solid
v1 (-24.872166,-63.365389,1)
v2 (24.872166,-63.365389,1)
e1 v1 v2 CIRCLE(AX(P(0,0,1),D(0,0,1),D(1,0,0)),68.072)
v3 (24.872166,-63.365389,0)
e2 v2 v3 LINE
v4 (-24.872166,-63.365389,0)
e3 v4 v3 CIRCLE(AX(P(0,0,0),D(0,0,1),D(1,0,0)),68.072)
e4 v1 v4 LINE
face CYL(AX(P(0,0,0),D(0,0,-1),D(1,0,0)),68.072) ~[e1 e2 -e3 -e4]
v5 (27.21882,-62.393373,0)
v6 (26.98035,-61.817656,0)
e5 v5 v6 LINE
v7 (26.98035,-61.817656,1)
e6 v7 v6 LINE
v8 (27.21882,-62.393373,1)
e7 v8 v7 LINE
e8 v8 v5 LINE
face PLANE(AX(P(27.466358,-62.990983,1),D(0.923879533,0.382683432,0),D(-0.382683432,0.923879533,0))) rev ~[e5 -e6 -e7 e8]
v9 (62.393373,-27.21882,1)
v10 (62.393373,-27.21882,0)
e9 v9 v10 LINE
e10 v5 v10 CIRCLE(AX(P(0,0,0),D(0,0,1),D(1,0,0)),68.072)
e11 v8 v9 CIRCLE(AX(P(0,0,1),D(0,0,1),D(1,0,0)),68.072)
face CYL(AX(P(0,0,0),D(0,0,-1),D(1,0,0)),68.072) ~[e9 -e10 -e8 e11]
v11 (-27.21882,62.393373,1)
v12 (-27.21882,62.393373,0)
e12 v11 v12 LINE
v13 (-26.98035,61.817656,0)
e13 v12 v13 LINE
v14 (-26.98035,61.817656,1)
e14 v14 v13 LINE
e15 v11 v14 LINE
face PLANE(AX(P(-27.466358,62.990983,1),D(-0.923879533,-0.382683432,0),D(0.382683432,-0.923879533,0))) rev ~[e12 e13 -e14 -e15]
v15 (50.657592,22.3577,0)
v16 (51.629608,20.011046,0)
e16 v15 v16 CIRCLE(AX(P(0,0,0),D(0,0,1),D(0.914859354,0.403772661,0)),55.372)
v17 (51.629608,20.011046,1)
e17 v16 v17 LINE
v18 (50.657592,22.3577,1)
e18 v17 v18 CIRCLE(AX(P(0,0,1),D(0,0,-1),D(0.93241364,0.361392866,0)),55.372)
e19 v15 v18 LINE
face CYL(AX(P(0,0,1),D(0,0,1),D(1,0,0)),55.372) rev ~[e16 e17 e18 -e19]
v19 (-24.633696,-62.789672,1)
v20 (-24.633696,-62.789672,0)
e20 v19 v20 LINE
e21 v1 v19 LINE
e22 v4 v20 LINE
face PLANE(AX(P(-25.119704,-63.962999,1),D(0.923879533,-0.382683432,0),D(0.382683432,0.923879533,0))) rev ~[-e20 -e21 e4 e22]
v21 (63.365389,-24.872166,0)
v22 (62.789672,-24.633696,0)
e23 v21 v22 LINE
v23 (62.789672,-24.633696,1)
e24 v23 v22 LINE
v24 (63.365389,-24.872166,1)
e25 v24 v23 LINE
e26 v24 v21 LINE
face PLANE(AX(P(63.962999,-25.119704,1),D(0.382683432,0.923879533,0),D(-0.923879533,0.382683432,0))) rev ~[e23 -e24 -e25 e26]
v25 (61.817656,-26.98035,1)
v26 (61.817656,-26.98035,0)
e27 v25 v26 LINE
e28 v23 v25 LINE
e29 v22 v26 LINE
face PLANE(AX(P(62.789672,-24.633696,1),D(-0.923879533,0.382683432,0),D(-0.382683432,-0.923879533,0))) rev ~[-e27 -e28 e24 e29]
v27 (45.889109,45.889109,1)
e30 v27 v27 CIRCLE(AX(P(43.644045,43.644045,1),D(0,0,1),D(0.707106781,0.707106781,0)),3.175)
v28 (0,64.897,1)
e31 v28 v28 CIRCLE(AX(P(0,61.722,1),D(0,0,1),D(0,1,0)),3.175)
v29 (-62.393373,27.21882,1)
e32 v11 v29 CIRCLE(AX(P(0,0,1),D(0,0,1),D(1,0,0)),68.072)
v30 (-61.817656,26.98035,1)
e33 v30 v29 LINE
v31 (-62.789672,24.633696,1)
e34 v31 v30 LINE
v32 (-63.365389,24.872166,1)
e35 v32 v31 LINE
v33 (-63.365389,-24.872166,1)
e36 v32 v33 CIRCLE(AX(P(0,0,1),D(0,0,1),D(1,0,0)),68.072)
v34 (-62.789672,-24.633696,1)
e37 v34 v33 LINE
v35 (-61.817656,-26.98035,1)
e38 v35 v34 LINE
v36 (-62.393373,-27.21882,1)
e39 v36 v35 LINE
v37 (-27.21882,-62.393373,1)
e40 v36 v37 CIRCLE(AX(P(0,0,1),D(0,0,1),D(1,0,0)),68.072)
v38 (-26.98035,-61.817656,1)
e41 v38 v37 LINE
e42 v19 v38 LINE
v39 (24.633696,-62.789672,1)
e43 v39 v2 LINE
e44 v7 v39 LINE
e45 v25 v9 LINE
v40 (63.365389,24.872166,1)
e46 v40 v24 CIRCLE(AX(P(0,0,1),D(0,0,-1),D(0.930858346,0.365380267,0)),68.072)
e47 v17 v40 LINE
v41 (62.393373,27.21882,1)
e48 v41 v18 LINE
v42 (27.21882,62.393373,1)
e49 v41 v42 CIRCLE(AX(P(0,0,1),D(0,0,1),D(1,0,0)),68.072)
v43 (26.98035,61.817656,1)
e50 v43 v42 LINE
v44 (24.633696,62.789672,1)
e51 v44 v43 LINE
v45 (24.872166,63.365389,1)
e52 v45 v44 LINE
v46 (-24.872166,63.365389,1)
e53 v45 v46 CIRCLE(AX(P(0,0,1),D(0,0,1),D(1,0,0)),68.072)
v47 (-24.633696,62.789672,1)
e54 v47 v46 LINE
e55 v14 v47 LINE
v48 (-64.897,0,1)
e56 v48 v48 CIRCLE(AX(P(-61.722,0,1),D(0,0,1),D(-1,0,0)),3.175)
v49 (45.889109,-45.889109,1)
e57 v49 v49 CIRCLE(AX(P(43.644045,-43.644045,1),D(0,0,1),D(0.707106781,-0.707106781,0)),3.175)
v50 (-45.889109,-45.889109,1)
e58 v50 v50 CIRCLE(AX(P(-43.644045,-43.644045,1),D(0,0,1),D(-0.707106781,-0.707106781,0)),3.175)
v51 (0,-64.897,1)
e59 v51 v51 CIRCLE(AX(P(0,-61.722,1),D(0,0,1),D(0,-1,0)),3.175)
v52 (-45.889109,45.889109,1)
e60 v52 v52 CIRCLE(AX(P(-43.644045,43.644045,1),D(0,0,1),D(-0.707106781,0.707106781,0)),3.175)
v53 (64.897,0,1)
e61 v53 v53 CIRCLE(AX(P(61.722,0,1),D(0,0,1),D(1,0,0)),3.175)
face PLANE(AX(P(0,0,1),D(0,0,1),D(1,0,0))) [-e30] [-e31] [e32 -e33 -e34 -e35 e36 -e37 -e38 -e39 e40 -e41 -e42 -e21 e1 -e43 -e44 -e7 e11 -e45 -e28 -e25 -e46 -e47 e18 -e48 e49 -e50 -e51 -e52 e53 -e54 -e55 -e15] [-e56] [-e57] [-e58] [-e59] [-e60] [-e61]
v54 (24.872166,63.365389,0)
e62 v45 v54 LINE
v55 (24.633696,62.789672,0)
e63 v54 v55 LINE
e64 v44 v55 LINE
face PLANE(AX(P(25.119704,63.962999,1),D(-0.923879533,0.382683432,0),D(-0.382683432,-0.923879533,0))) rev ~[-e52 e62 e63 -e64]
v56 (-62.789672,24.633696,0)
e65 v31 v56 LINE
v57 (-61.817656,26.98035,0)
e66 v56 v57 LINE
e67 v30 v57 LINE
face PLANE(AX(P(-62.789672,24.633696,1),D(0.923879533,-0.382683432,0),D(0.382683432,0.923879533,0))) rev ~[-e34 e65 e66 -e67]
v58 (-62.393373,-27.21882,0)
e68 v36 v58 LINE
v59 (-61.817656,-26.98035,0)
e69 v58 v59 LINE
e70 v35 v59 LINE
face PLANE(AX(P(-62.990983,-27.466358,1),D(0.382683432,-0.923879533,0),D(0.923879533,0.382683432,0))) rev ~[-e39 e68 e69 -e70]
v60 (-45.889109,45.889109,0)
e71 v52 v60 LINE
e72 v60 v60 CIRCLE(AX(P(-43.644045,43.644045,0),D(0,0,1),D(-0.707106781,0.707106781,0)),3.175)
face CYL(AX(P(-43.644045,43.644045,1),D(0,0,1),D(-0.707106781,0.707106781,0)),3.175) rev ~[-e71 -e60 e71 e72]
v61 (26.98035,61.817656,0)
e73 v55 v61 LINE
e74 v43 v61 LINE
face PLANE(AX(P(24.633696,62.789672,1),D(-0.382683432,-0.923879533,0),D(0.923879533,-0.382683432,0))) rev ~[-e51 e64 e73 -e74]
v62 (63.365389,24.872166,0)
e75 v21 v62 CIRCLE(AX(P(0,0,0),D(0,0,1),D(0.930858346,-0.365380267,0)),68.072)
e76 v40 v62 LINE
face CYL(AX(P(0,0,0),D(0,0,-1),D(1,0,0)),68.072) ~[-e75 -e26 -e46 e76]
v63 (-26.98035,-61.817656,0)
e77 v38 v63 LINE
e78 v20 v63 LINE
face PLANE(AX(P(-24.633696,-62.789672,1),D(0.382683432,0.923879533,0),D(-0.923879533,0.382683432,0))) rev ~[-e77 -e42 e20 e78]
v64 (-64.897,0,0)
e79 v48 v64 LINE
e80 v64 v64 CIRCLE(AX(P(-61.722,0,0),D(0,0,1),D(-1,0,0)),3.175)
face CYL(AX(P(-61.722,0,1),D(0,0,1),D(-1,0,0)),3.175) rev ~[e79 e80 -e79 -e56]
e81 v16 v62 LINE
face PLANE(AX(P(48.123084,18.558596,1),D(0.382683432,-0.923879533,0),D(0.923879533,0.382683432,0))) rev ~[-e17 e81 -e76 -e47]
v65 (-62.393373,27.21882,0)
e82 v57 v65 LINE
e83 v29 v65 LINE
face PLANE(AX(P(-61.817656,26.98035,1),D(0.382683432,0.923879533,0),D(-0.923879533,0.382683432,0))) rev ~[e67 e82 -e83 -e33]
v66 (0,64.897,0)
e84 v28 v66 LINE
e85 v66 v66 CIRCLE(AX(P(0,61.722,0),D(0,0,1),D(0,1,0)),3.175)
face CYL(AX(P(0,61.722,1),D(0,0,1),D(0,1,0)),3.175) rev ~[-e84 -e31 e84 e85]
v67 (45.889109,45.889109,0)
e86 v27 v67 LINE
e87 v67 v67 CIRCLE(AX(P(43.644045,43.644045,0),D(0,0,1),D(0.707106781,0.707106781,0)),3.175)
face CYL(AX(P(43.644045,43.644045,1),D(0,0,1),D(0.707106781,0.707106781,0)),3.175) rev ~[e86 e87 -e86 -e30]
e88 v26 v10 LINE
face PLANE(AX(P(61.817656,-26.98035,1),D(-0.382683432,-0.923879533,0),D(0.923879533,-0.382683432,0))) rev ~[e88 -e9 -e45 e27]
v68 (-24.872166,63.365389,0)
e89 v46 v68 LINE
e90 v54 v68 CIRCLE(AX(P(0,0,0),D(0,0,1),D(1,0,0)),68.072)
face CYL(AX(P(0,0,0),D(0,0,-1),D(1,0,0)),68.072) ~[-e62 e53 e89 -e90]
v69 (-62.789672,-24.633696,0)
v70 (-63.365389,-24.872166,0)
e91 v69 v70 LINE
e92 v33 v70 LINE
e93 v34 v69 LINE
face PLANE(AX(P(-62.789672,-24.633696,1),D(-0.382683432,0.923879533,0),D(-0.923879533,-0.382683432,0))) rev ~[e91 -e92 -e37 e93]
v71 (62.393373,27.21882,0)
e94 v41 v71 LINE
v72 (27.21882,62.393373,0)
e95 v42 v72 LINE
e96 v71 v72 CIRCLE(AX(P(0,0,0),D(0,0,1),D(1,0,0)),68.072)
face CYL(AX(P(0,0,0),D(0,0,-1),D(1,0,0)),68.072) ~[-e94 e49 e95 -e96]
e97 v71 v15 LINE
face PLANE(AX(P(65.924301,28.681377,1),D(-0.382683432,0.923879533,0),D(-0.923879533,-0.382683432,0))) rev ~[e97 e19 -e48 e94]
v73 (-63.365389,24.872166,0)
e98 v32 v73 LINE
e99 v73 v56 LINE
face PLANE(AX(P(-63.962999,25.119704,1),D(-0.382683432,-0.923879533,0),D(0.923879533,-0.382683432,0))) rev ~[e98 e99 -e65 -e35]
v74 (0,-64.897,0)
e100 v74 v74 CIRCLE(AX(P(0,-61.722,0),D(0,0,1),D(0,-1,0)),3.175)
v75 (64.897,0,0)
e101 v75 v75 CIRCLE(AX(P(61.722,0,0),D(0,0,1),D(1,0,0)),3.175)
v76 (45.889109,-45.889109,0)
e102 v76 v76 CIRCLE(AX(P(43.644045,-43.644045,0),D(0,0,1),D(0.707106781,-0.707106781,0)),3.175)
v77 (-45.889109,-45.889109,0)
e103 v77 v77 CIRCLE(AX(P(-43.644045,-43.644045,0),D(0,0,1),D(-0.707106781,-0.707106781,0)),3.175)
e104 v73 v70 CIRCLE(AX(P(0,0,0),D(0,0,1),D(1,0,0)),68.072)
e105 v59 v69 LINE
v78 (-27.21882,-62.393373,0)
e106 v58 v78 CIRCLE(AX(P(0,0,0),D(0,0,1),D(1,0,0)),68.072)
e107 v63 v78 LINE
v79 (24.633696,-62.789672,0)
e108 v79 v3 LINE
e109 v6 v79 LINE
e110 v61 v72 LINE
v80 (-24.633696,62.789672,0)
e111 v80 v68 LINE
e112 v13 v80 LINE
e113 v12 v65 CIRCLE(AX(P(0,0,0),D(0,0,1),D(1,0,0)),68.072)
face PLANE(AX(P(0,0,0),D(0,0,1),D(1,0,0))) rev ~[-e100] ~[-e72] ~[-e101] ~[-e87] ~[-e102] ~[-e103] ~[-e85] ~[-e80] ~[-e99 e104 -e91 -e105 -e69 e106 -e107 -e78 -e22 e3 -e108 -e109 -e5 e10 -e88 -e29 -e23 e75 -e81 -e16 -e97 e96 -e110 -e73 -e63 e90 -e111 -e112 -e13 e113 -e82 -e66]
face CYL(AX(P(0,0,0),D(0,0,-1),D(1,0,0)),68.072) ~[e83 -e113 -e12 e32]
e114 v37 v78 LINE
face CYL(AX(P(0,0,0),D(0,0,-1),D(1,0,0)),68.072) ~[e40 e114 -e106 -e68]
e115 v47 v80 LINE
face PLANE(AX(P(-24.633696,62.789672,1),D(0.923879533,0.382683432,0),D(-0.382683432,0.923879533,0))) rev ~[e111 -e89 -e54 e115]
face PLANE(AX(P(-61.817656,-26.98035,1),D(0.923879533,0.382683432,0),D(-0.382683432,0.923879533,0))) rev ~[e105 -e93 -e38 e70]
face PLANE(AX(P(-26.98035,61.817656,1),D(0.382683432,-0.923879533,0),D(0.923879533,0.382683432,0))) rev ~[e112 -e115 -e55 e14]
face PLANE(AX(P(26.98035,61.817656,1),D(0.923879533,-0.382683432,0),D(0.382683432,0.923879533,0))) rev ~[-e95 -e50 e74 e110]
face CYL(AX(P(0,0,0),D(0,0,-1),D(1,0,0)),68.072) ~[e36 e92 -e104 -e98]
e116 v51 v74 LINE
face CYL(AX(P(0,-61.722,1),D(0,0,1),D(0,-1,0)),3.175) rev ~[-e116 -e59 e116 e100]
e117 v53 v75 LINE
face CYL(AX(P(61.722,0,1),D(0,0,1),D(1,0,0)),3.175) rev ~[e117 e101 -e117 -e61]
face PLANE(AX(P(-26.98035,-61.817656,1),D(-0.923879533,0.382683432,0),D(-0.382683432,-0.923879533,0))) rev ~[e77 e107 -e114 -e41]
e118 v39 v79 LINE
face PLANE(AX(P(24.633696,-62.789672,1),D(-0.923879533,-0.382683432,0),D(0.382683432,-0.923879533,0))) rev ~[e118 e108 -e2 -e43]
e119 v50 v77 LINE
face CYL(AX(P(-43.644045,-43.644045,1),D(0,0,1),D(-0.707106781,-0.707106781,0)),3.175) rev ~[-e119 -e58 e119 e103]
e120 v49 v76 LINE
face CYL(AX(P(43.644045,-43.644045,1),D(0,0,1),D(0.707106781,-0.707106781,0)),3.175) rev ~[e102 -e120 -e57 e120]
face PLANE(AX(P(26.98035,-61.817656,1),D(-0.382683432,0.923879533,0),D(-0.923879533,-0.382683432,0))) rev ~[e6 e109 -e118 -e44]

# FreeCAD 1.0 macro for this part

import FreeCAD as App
import Part
import Sketcher
from FreeCAD import Vector
Q = App.Units.Quantity


def add_polygon(sketch, points):
    """Adds a closed chain of lines whose ends are joined by coincident constraints."""
    first, n = sketch.GeometryCount, len(points)
    for a, b in zip(points, points[1:] + points[:1]):
        sketch.addGeometry(Part.LineSegment(App.Vector(*a, 0), App.Vector(*b, 0)), False)
    for i in range(n):
        sketch.addConstraint(Sketcher.Constraint("Coincident", first + i, 2, first + (i + 1) % n, 1))

doc = App.newDocument("Part")
body = doc.addObject("PartDesign::Body", "Body")

sketch1 = doc.addObject("Sketcher::SketchObject", "Sketch")
body.addObject(sketch1)
sketch1.AttachmentSupport = (doc.XY_Plane, [""])
sketch1.MapMode = "FlatFace"
sketch1.addGeometry(Part.Circle(Vector(0, 0, 0), Vector(0, 0, 1), 68.072), False)
sketch1.addConstraint(Sketcher.Constraint("Coincident", 0, 3, -1, 1))
sketch1.addConstraint(Sketcher.Constraint("Diameter", 0, Q("5.36 in")))
pad1 = doc.addObject("PartDesign::Pad", "Pad")
body.addObject(pad1)
pad1.Profile = sketch1
pad1.Length = 1

sketch2 = doc.addObject("Sketcher::SketchObject", "Sketch001")
body.addObject(sketch2)
sketch2.AttachmentSupport = (doc.XY_Plane, [""])
sketch2.MapMode = "FlatFace"
sketch2.AttachmentOffset = App.Placement(Vector(0, 0, 1), App.Rotation())
sketch2.addGeometry(Part.Circle(Vector(0, 0, 0), Vector(0, 0, 1), 55.372), False)
sketch2.addConstraint(Sketcher.Constraint("Coincident", 0, 3, -1, 1))
sketch2.addConstraint(Sketcher.Constraint("Diameter", 0, Q("4.36 in")))
pocket1 = doc.addObject("PartDesign::Pocket", "Pocket")
body.addObject(pocket1)
pocket1.Profile = sketch2
pocket1.Type = "ThroughAll"

sketch3 = doc.addObject("Sketcher::SketchObject", "Sketch002")
body.addObject(sketch3)
sketch3.AttachmentSupport = (doc.XY_Plane, [""])
sketch3.MapMode = "FlatFace"
sketch3.AttachmentOffset = App.Placement(Vector(0, 0, 1), App.Rotation())
sketch3.addGeometry(Part.Circle(Vector(61.722, 0, 0), Vector(0, 0, 1), 3.175), False)
sketch3.addConstraint(Sketcher.Constraint("PointOnObject", 0, 3, -1))
sketch3.addConstraint(Sketcher.Constraint("Diameter", 0, Q("0.25 in")))
sketch3.addConstraint(Sketcher.Constraint("DistanceX", -1, 1, 0, 3, Q("2.43 in")))
pocket2 = doc.addObject("PartDesign::Pocket", "Pocket001")
body.addObject(pocket2)
pocket2.Profile = sketch3
pocket2.Type = "ThroughAll"
doc.recompute()

polarpattern = doc.addObject("PartDesign::PolarPattern", "PolarPattern")
body.addObject(polarpattern)
polarpattern.Originals = [pocket2]
polarpattern.Axis = (doc.Z_Axis, [""])
polarpattern.Angle = 360
polarpattern.Occurrences = 8
body.Tip = polarpattern

sketch4 = doc.addObject("Sketcher::SketchObject", "Sketch003")
body.addObject(sketch4)
sketch4.AttachmentSupport = (doc.XY_Plane, [""])
sketch4.MapMode = "FlatFace"
sketch4.AttachmentOffset = App.Placement(Vector(0, 0, 1), App.Rotation())
add_polygon(sketch4, [(65.924301, 28.681377), (47.151068, 20.90525), (48.123084, 18.558596), (66.896317, 26.334723)])
add_polygon(sketch4, [(27.466358, 62.990983), (25.119704, 63.962999), (24.633696, 62.789672), (26.98035, 61.817656)])
add_polygon(sketch4, [(-25.119704, 63.962999), (-27.466358, 62.990983), (-26.98035, 61.817656), (-24.633696, 62.789672)])
add_polygon(sketch4, [(-62.990983, 27.466358), (-63.962999, 25.119704), (-62.789672, 24.633696), (-61.817656, 26.98035)])
add_polygon(sketch4, [(-63.962999, -25.119704), (-62.990983, -27.466358), (-61.817656, -26.98035), (-62.789672, -24.633696)])
add_polygon(sketch4, [(-27.466358, -62.990983), (-25.119704, -63.962999), (-24.633696, -62.789672), (-26.98035, -61.817656)])
add_polygon(sketch4, [(25.119704, -63.962999), (27.466358, -62.990983), (26.98035, -61.817656), (24.633696, -62.789672)])
add_polygon(sketch4, [(62.990983, -27.466358), (63.962999, -25.119704), (62.789672, -24.633696), (61.817656, -26.98035)])
sketch4.addConstraint(Sketcher.Constraint("Symmetric", 4, 2, 20, 2, -1, 1))
sketch4.addConstraint(Sketcher.Constraint("Symmetric", 5, 2, 21, 2, -1, 1))
sketch4.addConstraint(Sketcher.Constraint("Symmetric", 6, 2, 22, 2, -1, 1))
sketch4.addConstraint(Sketcher.Constraint("Symmetric", 7, 2, 23, 2, -1, 1))
sketch4.addConstraint(Sketcher.Constraint("Symmetric", 8, 2, 24, 2, -1, 1))
sketch4.addConstraint(Sketcher.Constraint("Symmetric", 9, 2, 25, 2, -1, 1))
sketch4.addConstraint(Sketcher.Constraint("Symmetric", 10, 2, 26, 2, -1, 1))
sketch4.addConstraint(Sketcher.Constraint("Symmetric", 11, 2, 27, 2, -1, 1))
sketch4.addConstraint(Sketcher.Constraint("Symmetric", 12, 2, 28, 2, -1, 1))
sketch4.addConstraint(Sketcher.Constraint("Symmetric", 13, 2, 29, 2, -1, 1))
sketch4.addConstraint(Sketcher.Constraint("Symmetric", 14, 2, 30, 2, -1, 1))
sketch4.addConstraint(Sketcher.Constraint("Symmetric", 15, 2, 31, 2, -1, 1))
sketch4.addConstraint(Sketcher.Constraint("Symmetric", 7, 2, 8, 2, -2))
sketch4.addConstraint(Sketcher.Constraint("Symmetric", 6, 2, 9, 2, -2))
sketch4.addConstraint(Sketcher.Constraint("Symmetric", 5, 2, 10, 2, -2))
sketch4.addConstraint(Sketcher.Constraint("Symmetric", 4, 2, 11, 2, -2))
sketch4.addConstraint(Sketcher.Constraint("Symmetric", 19, 2, 28, 2, -2))
sketch4.addConstraint(Sketcher.Constraint("Symmetric", 18, 2, 29, 2, -2))
sketch4.addConstraint(Sketcher.Constraint("Symmetric", 17, 2, 30, 2, -2))
sketch4.addConstraint(Sketcher.Constraint("Symmetric", 16, 2, 31, 2, -2))
sketch4.addConstraint(Sketcher.Constraint("Perpendicular", 0, 1))
sketch4.addConstraint(Sketcher.Constraint("Perpendicular", 1, 2))
sketch4.addConstraint(Sketcher.Constraint("Perpendicular", 2, 3))
sketch4.addConstraint(Sketcher.Constraint("Perpendicular", 4, 5))
sketch4.addConstraint(Sketcher.Constraint("Perpendicular", 5, 6))
sketch4.addConstraint(Sketcher.Constraint("Perpendicular", 6, 7))
sketch4.addConstraint(Sketcher.Constraint("Perpendicular", 3, 8))
sketch4.addConstraint(Sketcher.Constraint("Parallel", 7, 12))
sketch4.addConstraint(Sketcher.Constraint("Perpendicular", 12, 13))
sketch4.addConstraint(Sketcher.Constraint("Perpendicular", 13, 14))
sketch4.addConstraint(Sketcher.Constraint("Perpendicular", 14, 15))
sketch4.addConstraint(Sketcher.Constraint("Equal", 3, 4))
sketch4.addConstraint(Sketcher.Constraint("Equal", 10, 12))
sketch4.addConstraint(Sketcher.Constraint("Equal", 11, 13))
sketch4.addConstraint(Sketcher.Constraint("Distance", 0, Q("0.8 in")))
sketch4.addConstraint(Sketcher.Constraint("Distance", 1, Q("0.1 in")))
sketch4.addConstraint(Sketcher.Constraint("Angle", 0, Q("-157.5 deg")))
sketch4.addConstraint(Sketcher.Constraint("Distance", 5, Q("0.05 in")))
sketch4.addConstraint(Sketcher.Constraint("DistanceY", -1, 1, 2, 2, Q("1.0368001 in")))
sketch4.addConstraint(Sketcher.Constraint("DistanceX", -1, 1, 3, 2, Q("65.924301 mm")))
sketch4.addConstraint(Sketcher.Constraint("DistanceY", -1, 1, 4, 2, Q("63.962999 mm")))
sketch4.addConstraint(Sketcher.Constraint("DistanceX", 12, 2, -1, 1, Q("63.962999 mm")))
sketch4.addConstraint(Sketcher.Constraint("DistanceX", 9, 2, 6, 2, Q("53.960699 mm")))
sketch4.addConstraint(Sketcher.Constraint("DistanceY", 15, 2, 9, 2, Q("34.351298 mm")))
pocket3 = doc.addObject("PartDesign::Pocket", "Pocket002")
body.addObject(pocket3)
pocket3.Profile = sketch4
pocket3.Type = "ThroughAll"

doc.recompute()
